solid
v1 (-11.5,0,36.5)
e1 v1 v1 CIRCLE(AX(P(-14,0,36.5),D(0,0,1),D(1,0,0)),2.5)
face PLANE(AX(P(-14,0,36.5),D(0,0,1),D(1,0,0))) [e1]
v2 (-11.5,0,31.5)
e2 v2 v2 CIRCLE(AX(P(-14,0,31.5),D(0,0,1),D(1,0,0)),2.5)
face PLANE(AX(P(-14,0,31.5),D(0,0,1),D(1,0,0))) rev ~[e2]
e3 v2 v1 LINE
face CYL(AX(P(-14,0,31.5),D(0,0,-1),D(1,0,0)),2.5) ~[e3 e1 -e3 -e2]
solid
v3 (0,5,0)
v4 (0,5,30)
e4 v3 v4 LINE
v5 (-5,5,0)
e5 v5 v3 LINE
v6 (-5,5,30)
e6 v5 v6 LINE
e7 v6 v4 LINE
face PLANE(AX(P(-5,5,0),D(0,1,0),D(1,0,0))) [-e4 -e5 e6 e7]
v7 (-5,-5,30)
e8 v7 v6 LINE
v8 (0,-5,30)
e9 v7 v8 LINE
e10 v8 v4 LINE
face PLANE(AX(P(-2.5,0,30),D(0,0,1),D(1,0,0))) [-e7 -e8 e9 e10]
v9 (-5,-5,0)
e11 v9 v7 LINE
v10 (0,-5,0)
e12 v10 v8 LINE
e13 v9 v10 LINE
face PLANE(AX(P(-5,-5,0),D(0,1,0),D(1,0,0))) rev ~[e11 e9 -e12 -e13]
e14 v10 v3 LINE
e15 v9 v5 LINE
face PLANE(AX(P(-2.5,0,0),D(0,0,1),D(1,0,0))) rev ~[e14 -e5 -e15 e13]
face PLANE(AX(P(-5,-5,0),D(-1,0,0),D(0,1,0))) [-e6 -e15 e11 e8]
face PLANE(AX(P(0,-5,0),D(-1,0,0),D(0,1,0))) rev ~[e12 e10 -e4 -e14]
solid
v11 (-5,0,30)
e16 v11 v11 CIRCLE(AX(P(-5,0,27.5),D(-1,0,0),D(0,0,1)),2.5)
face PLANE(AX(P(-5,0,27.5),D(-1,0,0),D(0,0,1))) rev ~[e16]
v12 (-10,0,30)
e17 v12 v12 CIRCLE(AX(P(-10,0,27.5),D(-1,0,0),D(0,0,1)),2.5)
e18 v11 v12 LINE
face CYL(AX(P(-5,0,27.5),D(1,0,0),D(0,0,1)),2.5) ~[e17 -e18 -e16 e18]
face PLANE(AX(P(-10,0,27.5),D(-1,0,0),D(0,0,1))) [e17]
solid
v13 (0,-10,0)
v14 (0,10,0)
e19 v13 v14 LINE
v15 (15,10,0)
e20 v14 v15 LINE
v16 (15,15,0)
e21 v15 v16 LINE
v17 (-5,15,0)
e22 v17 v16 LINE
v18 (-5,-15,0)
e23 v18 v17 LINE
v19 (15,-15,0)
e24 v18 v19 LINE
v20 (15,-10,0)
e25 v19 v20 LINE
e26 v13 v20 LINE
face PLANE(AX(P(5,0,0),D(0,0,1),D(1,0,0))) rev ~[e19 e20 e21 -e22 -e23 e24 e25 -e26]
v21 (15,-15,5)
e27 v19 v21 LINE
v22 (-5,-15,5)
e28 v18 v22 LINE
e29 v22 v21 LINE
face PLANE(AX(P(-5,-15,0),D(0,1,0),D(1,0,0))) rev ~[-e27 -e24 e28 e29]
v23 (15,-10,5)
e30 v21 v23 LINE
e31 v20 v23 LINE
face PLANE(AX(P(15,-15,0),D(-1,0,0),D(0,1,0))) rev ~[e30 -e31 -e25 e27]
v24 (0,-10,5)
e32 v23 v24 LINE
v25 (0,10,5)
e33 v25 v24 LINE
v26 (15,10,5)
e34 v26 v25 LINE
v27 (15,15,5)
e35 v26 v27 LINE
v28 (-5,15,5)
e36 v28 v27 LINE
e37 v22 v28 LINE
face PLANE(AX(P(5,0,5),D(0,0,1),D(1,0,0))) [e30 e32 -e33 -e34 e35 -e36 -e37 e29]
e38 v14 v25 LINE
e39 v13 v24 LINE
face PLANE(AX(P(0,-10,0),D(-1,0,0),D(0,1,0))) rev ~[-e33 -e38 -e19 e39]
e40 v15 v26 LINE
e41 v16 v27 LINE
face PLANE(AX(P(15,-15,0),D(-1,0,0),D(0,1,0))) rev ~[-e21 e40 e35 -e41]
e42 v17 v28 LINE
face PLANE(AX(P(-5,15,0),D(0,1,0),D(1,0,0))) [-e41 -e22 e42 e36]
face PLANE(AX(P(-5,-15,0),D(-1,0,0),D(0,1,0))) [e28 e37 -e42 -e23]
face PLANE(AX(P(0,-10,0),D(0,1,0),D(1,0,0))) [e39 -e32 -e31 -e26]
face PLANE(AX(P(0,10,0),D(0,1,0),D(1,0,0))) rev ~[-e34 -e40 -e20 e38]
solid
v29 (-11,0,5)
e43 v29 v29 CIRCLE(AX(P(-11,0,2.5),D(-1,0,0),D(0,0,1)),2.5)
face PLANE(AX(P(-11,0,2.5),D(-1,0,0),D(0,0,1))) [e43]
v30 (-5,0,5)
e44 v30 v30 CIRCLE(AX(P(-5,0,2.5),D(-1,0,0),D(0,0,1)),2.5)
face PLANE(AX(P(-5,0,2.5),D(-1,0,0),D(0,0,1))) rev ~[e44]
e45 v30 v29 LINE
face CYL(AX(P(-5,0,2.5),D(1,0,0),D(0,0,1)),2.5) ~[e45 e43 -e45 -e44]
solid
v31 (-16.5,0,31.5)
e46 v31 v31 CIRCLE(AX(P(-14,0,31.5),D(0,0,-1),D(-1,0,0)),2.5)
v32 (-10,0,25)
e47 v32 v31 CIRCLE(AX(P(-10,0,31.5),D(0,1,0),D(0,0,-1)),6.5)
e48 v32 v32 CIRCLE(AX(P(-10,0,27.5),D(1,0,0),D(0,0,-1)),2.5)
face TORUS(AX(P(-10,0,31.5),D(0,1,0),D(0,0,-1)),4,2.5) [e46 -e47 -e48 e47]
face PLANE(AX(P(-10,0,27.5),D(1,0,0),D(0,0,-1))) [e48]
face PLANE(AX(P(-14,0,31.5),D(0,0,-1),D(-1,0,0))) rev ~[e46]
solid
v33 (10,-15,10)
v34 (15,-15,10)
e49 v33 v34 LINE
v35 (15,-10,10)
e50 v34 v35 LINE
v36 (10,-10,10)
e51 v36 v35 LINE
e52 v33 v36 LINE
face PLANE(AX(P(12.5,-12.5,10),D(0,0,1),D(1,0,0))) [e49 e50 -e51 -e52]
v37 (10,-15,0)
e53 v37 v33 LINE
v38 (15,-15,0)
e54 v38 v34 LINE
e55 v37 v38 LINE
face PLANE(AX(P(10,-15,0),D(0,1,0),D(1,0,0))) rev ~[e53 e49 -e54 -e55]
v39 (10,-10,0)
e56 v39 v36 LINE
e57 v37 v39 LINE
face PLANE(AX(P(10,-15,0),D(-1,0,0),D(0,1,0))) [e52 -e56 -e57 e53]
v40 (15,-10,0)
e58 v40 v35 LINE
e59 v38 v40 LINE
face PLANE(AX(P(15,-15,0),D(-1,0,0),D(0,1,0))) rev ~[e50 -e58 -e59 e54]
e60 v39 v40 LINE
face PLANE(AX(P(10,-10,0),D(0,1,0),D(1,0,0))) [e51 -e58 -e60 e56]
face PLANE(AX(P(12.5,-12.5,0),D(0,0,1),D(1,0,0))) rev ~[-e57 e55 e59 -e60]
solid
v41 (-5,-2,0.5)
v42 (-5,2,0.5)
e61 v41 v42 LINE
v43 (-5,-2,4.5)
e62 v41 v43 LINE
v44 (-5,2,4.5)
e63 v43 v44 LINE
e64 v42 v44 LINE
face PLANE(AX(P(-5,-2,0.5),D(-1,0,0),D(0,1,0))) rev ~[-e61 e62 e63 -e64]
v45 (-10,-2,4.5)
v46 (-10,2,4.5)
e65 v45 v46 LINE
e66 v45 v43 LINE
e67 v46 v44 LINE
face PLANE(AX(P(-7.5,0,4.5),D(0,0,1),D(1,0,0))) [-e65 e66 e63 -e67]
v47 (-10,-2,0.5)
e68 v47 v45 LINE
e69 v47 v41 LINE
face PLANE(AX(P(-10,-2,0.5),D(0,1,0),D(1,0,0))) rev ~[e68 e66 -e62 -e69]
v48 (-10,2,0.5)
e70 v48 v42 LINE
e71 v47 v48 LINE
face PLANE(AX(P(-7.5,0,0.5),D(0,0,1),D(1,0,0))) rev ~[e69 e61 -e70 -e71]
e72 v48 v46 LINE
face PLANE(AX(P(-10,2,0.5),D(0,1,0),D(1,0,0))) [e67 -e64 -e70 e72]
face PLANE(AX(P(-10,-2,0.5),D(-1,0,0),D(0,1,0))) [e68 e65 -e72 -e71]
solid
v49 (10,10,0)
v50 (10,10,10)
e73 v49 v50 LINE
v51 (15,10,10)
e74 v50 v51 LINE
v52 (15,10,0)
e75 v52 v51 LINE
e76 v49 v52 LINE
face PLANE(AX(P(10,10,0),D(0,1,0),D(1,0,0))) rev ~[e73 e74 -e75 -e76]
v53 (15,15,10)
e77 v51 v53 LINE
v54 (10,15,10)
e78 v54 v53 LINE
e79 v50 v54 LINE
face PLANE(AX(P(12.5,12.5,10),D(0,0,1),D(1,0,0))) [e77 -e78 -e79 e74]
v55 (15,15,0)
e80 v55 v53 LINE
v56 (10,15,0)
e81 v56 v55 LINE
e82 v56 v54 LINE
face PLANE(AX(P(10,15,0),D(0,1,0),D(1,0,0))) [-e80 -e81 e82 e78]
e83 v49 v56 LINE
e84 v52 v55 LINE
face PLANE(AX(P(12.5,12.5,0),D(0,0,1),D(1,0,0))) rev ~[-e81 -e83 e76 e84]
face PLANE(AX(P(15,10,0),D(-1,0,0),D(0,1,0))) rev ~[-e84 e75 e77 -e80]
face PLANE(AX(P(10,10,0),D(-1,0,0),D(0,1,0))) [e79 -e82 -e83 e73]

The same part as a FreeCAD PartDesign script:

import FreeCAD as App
import Part
import Sketcher
from FreeCAD import Vector


def add_polygon(sketch, points):
    """Adds a closed chain of lines whose ends are joined by coincident constraints."""
    first, n = sketch.GeometryCount, len(points)
    for a, b in zip(points, points[1:] + points[:1]):
        sketch.addGeometry(Part.LineSegment(App.Vector(*a, 0), App.Vector(*b, 0)), False)
    for i in range(n):
        sketch.addConstraint(Sketcher.Constraint("Coincident", first + i, 2, first + (i + 1) % n, 1))

doc = App.newDocument("Part")
body = doc.addObject("PartDesign::Body", "Body")

sketch1 = doc.addObject("Sketcher::SketchObject", "Sketch")
body.addObject(sketch1)
sketch1.AttachmentSupport = (doc.XY_Plane, [""])
sketch1.MapMode = "FlatFace"
sketch1.addGeometry(Part.Circle(Vector(0, 0, 0), Vector(0, 0, 1), 2.5), False)
sketch1.addConstraint([
    Sketcher.Constraint("Coincident", 0, 3, -1, 1),
    Sketcher.Constraint("Diameter", 0, 5.0),
])
pad1 = doc.addObject("PartDesign::Pad", "Pad")
body.addObject(pad1)
pad1.Profile = sketch1
pad1.Length = 6
body2 = doc.addObject("PartDesign::Body", "Body001")
doc.recompute()

body.Placement = App.Placement(Vector(0, 0, 0), App.Rotation(Vector(0, 1, 0), 270))
boolean = doc.addObject("PartDesign::Boolean", "Boolean")
body2.addObject(boolean)
boolean.Type = "Fuse"
boolean.addObjects([body])
body3 = doc.addObject("PartDesign::Body", "Body002")
doc.recompute()

body2.Placement = App.Placement(Vector(-5, 0, 2.5), App.Rotation(Vector(0, 0, 1), 0))
boolean2 = doc.addObject("PartDesign::Boolean", "Boolean001")
body3.addObject(boolean2)
boolean2.Type = "Fuse"
boolean2.addObjects([body2])
body4 = doc.addObject("PartDesign::Body", "Body003")

sketch2 = doc.addObject("Sketcher::SketchObject", "Sketch001")
body4.addObject(sketch2)
sketch2.AttachmentSupport = (doc.getObject("XY_Plane003"), [""])
sketch2.MapMode = "FlatFace"
add_polygon(sketch2, [(-5, 5), (-5, -5), (0, -5), (0, 5)])
sketch2.addConstraint([
    Sketcher.Constraint("Vertical", 0),
    Sketcher.Constraint("Horizontal", 1),
    Sketcher.Constraint("Vertical", 2),
    Sketcher.Constraint("Horizontal", 3),
    Sketcher.Constraint("Symmetric", 1, 2, 2, 2, -1, 1),
    Sketcher.Constraint("DistanceX", 1, 1, 1, 2, 5.0),
    Sketcher.Constraint("DistanceY", 0, 2, 0, 1, 10.0),
])
pad2 = doc.addObject("PartDesign::Pad", "Pad001")
body4.addObject(pad2)
pad2.Profile = sketch2
pad2.Length = 30
body5 = doc.addObject("PartDesign::Body", "Body004")

sketch3 = doc.addObject("Sketcher::SketchObject", "Sketch002")
body5.addObject(sketch3)
sketch3.AttachmentSupport = (doc.getObject("XY_Plane004"), [""])
sketch3.MapMode = "FlatFace"
sketch3.addGeometry(Part.Circle(Vector(0, 0, 0), Vector(0, 0, 1), 2.5), False)
sketch3.addConstraint([
    Sketcher.Constraint("Coincident", 0, 3, -1, 1),
    Sketcher.Constraint("Diameter", 0, 5.0),
])
pad3 = doc.addObject("PartDesign::Pad", "Pad002")
body5.addObject(pad3)
pad3.Profile = sketch3
pad3.Length = 5
body6 = doc.addObject("PartDesign::Body", "Body005")
doc.recompute()

body5.Placement = App.Placement(Vector(0, 0, 0), App.Rotation(Vector(0, 1, 0), 270))
boolean3 = doc.addObject("PartDesign::Boolean", "Boolean002")
body6.addObject(boolean3)
boolean3.Type = "Fuse"
boolean3.addObjects([body5])
body7 = doc.addObject("PartDesign::Body", "Body006")
doc.recompute()

body6.Placement = App.Placement(Vector(-5, 0, 27.5), App.Rotation(Vector(0, 0, 1), 0))
boolean4 = doc.addObject("PartDesign::Boolean", "Boolean003")
body7.addObject(boolean4)
boolean4.Type = "Fuse"
boolean4.addObjects([body6])
body8 = doc.addObject("PartDesign::Body", "Body007")

sketch4 = doc.addObject("Sketcher::SketchObject", "Sketch003")
body8.addObject(sketch4)
sketch4.AttachmentSupport = (doc.getObject("YZ_Plane007"), [""])
sketch4.MapMode = "FlatFace"
sketch4.AttachmentOffset = App.Placement(Vector(0, 0, -10), App.Rotation())
sketch4.addGeometry(Part.Circle(Vector(0, 27.5, 0), Vector(0, 0, 1), 2.5), False)
sketch4.addGeometry(Part.LineSegment(Vector(0, 31.5, 0), Vector(10, 31.5, 0)), True)
sketch4.addConstraint([
    Sketcher.Constraint("Horizontal", 1),
    Sketcher.Constraint("PointOnObject", 0, 3, -2),
    Sketcher.Constraint("PointOnObject", 1, 1, -2),
    Sketcher.Constraint("Diameter", 0, 5.0),
    Sketcher.Constraint("DistanceX", 1, 1, 1, 2, 10.0),
    Sketcher.Constraint("DistanceY", 0, 3, 1, 1, 4.0),
    Sketcher.Constraint("DistanceY", -1, 1, 0, 3, 27.5),
])
revolution = doc.addObject("PartDesign::Revolution", "Revolution")
body8.addObject(revolution)
revolution.Profile = sketch4
revolution.ReferenceAxis = (sketch4, ["Axis0"])
revolution.Angle = 90
body9 = doc.addObject("PartDesign::Body", "Body008")

sketch5 = doc.addObject("Sketcher::SketchObject", "Sketch004")
body9.addObject(sketch5)
sketch5.AttachmentSupport = (doc.getObject("XY_Plane008"), [""])
sketch5.MapMode = "FlatFace"
sketch5.AttachmentOffset = App.Placement(Vector(0, 0, 31.5), App.Rotation())
sketch5.addGeometry(Part.Circle(Vector(-14, 0, 0), Vector(0, 0, 1), 2.5), False)
sketch5.addConstraint([
    Sketcher.Constraint("PointOnObject", 0, 3, -1),
    Sketcher.Constraint("Diameter", 0, 5.0),
    Sketcher.Constraint("DistanceX", 0, 3, -1, 1, 14.0),
])
pad4 = doc.addObject("PartDesign::Pad", "Pad003")
body9.addObject(pad4)
pad4.Profile = sketch5
pad4.Length = 5
body10 = doc.addObject("PartDesign::Body", "Body009")

sketch6 = doc.addObject("Sketcher::SketchObject", "Sketch005")
body10.addObject(sketch6)
sketch6.AttachmentSupport = (doc.getObject("XY_Plane009"), [""])
sketch6.MapMode = "FlatFace"
sketch6.AttachmentOffset = App.Placement(Vector(0, 0, 0.5), App.Rotation())
add_polygon(sketch6, [(-10, 2), (-10, -2), (-5, -2), (-5, 2)])
sketch6.addConstraint([
    Sketcher.Constraint("Vertical", 0),
    Sketcher.Constraint("Horizontal", 1),
    Sketcher.Constraint("Vertical", 2),
    Sketcher.Constraint("Horizontal", 3),
    Sketcher.Constraint("DistanceX", 1, 1, 1, 2, 5.0),
    Sketcher.Constraint("DistanceY", 0, 2, 0, 1, 4.0),
    Sketcher.Constraint("DistanceX", 0, 2, -1, 1, 10.0),
    Sketcher.Constraint("DistanceY", 0, 2, -1, 1, 2.0),
])
pad5 = doc.addObject("PartDesign::Pad", "Pad004")
body10.addObject(pad5)
pad5.Profile = sketch6
pad5.Length = 4
body11 = doc.addObject("PartDesign::Body", "Body010")

sketch7 = doc.addObject("Sketcher::SketchObject", "Sketch006")
body11.addObject(sketch7)
sketch7.AttachmentSupport = (doc.getObject("XY_Plane010"), [""])
sketch7.MapMode = "FlatFace"
add_polygon(sketch7, [(0, 10), (0, -10), (15, -10), (15, 10)])
sketch7.addConstraint([
    Sketcher.Constraint("Vertical", 0),
    Sketcher.Constraint("Horizontal", 1),
    Sketcher.Constraint("Vertical", 2),
    Sketcher.Constraint("Horizontal", 3),
    Sketcher.Constraint("Symmetric", 0, 2, 3, 2, -1, 1),
    Sketcher.Constraint("DistanceX", 1, 1, 1, 2, 15.0),
    Sketcher.Constraint("DistanceY", 0, 2, 0, 1, 20.0),
])
pad6 = doc.addObject("PartDesign::Pad", "Pad005")
body11.addObject(pad6)
pad6.Profile = sketch7
pad6.Length = 10
body12 = doc.addObject("PartDesign::Body", "Body011")

sketch8 = doc.addObject("Sketcher::SketchObject", "Sketch007")
body12.addObject(sketch8)
sketch8.AttachmentSupport = (doc.getObject("XY_Plane011"), [""])
sketch8.MapMode = "FlatFace"
add_polygon(sketch8, [(-5, 15), (-5, -15), (15, -15), (15, 15)])
sketch8.addConstraint([
    Sketcher.Constraint("Vertical", 0),
    Sketcher.Constraint("Horizontal", 1),
    Sketcher.Constraint("Vertical", 2),
    Sketcher.Constraint("Horizontal", 3),
    Sketcher.Constraint("DistanceX", 1, 1, 1, 2, 20.0),
    Sketcher.Constraint("DistanceY", 0, 2, 0, 1, 30.0),
    Sketcher.Constraint("DistanceX", 0, 2, -1, 1, 5.0),
    Sketcher.Constraint("DistanceY", 0, 2, -1, 1, 15.0),
])
pad7 = doc.addObject("PartDesign::Pad", "Pad006")
body12.addObject(pad7)
pad7.Profile = sketch8
pad7.Length = 5
doc.recompute()

boolean5 = doc.addObject("PartDesign::Boolean", "Boolean004")
body12.addObject(boolean5)
boolean5.Type = "Cut"
boolean5.addObjects([body11])
body13 = doc.addObject("PartDesign::Body", "Body012")

sketch9 = doc.addObject("Sketcher::SketchObject", "Sketch008")
body13.addObject(sketch9)
sketch9.AttachmentSupport = (doc.getObject("XY_Plane012"), [""])
sketch9.MapMode = "FlatFace"
add_polygon(sketch9, [(10, 15), (10, 10), (15, 10), (15, 15)])
sketch9.addConstraint([
    Sketcher.Constraint("Vertical", 0),
    Sketcher.Constraint("Horizontal", 1),
    Sketcher.Constraint("Vertical", 2),
    Sketcher.Constraint("Horizontal", 3),
    Sketcher.Constraint("Equal", 3, 0),
    Sketcher.Constraint("DistanceX", 1, 1, 1, 2, 5.0),
    Sketcher.Constraint("DistanceX", -1, 1, 0, 2, 10.0),
    Sketcher.Constraint("DistanceY", -1, 1, 0, 2, 10.0),
])
pad8 = doc.addObject("PartDesign::Pad", "Pad007")
body13.addObject(pad8)
pad8.Profile = sketch9
pad8.Length = 10
body14 = doc.addObject("PartDesign::Body", "Body013")

sketch10 = doc.addObject("Sketcher::SketchObject", "Sketch009")
body14.addObject(sketch10)
sketch10.AttachmentSupport = (doc.getObject("XY_Plane013"), [""])
sketch10.MapMode = "FlatFace"
add_polygon(sketch10, [(10, -10), (10, -15), (15, -15), (15, -10)])
sketch10.addConstraint([
    Sketcher.Constraint("Vertical", 0),
    Sketcher.Constraint("Horizontal", 1),
    Sketcher.Constraint("Vertical", 2),
    Sketcher.Constraint("Horizontal", 3),
    Sketcher.Constraint("Equal", 3, 0),
    Sketcher.Constraint("DistanceX", 1, 1, 1, 2, 5.0),
    Sketcher.Constraint("DistanceX", -1, 1, 0, 2, 10.0),
    Sketcher.Constraint("DistanceY", 0, 2, -1, 1, 15.0),
])
pad9 = doc.addObject("PartDesign::Pad", "Pad008")
body14.addObject(pad9)
pad9.Profile = sketch10
pad9.Length = 10

doc.recompute()
